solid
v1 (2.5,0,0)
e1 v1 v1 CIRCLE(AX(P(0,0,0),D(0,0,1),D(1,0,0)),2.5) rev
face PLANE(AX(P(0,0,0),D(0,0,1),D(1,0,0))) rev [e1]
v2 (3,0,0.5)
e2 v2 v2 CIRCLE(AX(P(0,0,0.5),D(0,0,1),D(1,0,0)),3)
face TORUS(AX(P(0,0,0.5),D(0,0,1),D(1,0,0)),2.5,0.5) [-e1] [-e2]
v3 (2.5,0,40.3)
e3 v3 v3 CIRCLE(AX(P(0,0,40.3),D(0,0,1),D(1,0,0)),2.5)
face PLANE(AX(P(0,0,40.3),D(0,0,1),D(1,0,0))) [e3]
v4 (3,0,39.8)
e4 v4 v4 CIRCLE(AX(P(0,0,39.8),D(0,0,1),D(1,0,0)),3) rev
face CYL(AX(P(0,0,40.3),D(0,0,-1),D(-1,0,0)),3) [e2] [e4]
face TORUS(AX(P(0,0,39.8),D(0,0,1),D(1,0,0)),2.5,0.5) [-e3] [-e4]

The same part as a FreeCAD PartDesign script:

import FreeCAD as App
import Part
import Sketcher

V = App.Vector


def edges_at(feature, points):
    """Names of the edges that pass closest to the given points."""
    edges = feature.Shape.Edges
    near = lambda p: min(range(len(edges)), key=lambda i: edges[i].distToShape(Part.Vertex(*p))[0])
    return sorted({f"Edge{near(p) + 1}" for p in points})

doc = App.newDocument("Part")
body = doc.addObject("PartDesign::Body", "Body")

sketch1 = body.newObject("Sketcher::SketchObject", "Sketch")
sketch1.AttachmentSupport = (doc.getObject("XY_Plane"), [""])
sketch1.MapMode = "FlatFace"
sketch1.addGeometry(Part.Circle(V(0, 0, 0), V(0, 0, 1), 3), False)
sketch1.addConstraint([
    Sketcher.Constraint("Coincident", 0, 3, -1, 1),
    Sketcher.Constraint("Diameter", 0, 6.0),
])
pad1 = body.newObject("PartDesign::Pad", "Pad")
pad1.Profile = sketch1
pad1.Length = 40.3
doc.recompute()

fillet = body.newObject("PartDesign::Fillet", "Fillet")
fillet.Base = (pad1, edges_at(pad1, [(-3, 0, 0)]))
fillet.Radius = 0.5
doc.recompute()

fillet2 = body.newObject("PartDesign::Fillet", "Fillet001")
fillet2.Base = (fillet, edges_at(fillet, [(-3, 0, 40.3)]))
fillet2.Radius = 0.5

doc.recompute()
